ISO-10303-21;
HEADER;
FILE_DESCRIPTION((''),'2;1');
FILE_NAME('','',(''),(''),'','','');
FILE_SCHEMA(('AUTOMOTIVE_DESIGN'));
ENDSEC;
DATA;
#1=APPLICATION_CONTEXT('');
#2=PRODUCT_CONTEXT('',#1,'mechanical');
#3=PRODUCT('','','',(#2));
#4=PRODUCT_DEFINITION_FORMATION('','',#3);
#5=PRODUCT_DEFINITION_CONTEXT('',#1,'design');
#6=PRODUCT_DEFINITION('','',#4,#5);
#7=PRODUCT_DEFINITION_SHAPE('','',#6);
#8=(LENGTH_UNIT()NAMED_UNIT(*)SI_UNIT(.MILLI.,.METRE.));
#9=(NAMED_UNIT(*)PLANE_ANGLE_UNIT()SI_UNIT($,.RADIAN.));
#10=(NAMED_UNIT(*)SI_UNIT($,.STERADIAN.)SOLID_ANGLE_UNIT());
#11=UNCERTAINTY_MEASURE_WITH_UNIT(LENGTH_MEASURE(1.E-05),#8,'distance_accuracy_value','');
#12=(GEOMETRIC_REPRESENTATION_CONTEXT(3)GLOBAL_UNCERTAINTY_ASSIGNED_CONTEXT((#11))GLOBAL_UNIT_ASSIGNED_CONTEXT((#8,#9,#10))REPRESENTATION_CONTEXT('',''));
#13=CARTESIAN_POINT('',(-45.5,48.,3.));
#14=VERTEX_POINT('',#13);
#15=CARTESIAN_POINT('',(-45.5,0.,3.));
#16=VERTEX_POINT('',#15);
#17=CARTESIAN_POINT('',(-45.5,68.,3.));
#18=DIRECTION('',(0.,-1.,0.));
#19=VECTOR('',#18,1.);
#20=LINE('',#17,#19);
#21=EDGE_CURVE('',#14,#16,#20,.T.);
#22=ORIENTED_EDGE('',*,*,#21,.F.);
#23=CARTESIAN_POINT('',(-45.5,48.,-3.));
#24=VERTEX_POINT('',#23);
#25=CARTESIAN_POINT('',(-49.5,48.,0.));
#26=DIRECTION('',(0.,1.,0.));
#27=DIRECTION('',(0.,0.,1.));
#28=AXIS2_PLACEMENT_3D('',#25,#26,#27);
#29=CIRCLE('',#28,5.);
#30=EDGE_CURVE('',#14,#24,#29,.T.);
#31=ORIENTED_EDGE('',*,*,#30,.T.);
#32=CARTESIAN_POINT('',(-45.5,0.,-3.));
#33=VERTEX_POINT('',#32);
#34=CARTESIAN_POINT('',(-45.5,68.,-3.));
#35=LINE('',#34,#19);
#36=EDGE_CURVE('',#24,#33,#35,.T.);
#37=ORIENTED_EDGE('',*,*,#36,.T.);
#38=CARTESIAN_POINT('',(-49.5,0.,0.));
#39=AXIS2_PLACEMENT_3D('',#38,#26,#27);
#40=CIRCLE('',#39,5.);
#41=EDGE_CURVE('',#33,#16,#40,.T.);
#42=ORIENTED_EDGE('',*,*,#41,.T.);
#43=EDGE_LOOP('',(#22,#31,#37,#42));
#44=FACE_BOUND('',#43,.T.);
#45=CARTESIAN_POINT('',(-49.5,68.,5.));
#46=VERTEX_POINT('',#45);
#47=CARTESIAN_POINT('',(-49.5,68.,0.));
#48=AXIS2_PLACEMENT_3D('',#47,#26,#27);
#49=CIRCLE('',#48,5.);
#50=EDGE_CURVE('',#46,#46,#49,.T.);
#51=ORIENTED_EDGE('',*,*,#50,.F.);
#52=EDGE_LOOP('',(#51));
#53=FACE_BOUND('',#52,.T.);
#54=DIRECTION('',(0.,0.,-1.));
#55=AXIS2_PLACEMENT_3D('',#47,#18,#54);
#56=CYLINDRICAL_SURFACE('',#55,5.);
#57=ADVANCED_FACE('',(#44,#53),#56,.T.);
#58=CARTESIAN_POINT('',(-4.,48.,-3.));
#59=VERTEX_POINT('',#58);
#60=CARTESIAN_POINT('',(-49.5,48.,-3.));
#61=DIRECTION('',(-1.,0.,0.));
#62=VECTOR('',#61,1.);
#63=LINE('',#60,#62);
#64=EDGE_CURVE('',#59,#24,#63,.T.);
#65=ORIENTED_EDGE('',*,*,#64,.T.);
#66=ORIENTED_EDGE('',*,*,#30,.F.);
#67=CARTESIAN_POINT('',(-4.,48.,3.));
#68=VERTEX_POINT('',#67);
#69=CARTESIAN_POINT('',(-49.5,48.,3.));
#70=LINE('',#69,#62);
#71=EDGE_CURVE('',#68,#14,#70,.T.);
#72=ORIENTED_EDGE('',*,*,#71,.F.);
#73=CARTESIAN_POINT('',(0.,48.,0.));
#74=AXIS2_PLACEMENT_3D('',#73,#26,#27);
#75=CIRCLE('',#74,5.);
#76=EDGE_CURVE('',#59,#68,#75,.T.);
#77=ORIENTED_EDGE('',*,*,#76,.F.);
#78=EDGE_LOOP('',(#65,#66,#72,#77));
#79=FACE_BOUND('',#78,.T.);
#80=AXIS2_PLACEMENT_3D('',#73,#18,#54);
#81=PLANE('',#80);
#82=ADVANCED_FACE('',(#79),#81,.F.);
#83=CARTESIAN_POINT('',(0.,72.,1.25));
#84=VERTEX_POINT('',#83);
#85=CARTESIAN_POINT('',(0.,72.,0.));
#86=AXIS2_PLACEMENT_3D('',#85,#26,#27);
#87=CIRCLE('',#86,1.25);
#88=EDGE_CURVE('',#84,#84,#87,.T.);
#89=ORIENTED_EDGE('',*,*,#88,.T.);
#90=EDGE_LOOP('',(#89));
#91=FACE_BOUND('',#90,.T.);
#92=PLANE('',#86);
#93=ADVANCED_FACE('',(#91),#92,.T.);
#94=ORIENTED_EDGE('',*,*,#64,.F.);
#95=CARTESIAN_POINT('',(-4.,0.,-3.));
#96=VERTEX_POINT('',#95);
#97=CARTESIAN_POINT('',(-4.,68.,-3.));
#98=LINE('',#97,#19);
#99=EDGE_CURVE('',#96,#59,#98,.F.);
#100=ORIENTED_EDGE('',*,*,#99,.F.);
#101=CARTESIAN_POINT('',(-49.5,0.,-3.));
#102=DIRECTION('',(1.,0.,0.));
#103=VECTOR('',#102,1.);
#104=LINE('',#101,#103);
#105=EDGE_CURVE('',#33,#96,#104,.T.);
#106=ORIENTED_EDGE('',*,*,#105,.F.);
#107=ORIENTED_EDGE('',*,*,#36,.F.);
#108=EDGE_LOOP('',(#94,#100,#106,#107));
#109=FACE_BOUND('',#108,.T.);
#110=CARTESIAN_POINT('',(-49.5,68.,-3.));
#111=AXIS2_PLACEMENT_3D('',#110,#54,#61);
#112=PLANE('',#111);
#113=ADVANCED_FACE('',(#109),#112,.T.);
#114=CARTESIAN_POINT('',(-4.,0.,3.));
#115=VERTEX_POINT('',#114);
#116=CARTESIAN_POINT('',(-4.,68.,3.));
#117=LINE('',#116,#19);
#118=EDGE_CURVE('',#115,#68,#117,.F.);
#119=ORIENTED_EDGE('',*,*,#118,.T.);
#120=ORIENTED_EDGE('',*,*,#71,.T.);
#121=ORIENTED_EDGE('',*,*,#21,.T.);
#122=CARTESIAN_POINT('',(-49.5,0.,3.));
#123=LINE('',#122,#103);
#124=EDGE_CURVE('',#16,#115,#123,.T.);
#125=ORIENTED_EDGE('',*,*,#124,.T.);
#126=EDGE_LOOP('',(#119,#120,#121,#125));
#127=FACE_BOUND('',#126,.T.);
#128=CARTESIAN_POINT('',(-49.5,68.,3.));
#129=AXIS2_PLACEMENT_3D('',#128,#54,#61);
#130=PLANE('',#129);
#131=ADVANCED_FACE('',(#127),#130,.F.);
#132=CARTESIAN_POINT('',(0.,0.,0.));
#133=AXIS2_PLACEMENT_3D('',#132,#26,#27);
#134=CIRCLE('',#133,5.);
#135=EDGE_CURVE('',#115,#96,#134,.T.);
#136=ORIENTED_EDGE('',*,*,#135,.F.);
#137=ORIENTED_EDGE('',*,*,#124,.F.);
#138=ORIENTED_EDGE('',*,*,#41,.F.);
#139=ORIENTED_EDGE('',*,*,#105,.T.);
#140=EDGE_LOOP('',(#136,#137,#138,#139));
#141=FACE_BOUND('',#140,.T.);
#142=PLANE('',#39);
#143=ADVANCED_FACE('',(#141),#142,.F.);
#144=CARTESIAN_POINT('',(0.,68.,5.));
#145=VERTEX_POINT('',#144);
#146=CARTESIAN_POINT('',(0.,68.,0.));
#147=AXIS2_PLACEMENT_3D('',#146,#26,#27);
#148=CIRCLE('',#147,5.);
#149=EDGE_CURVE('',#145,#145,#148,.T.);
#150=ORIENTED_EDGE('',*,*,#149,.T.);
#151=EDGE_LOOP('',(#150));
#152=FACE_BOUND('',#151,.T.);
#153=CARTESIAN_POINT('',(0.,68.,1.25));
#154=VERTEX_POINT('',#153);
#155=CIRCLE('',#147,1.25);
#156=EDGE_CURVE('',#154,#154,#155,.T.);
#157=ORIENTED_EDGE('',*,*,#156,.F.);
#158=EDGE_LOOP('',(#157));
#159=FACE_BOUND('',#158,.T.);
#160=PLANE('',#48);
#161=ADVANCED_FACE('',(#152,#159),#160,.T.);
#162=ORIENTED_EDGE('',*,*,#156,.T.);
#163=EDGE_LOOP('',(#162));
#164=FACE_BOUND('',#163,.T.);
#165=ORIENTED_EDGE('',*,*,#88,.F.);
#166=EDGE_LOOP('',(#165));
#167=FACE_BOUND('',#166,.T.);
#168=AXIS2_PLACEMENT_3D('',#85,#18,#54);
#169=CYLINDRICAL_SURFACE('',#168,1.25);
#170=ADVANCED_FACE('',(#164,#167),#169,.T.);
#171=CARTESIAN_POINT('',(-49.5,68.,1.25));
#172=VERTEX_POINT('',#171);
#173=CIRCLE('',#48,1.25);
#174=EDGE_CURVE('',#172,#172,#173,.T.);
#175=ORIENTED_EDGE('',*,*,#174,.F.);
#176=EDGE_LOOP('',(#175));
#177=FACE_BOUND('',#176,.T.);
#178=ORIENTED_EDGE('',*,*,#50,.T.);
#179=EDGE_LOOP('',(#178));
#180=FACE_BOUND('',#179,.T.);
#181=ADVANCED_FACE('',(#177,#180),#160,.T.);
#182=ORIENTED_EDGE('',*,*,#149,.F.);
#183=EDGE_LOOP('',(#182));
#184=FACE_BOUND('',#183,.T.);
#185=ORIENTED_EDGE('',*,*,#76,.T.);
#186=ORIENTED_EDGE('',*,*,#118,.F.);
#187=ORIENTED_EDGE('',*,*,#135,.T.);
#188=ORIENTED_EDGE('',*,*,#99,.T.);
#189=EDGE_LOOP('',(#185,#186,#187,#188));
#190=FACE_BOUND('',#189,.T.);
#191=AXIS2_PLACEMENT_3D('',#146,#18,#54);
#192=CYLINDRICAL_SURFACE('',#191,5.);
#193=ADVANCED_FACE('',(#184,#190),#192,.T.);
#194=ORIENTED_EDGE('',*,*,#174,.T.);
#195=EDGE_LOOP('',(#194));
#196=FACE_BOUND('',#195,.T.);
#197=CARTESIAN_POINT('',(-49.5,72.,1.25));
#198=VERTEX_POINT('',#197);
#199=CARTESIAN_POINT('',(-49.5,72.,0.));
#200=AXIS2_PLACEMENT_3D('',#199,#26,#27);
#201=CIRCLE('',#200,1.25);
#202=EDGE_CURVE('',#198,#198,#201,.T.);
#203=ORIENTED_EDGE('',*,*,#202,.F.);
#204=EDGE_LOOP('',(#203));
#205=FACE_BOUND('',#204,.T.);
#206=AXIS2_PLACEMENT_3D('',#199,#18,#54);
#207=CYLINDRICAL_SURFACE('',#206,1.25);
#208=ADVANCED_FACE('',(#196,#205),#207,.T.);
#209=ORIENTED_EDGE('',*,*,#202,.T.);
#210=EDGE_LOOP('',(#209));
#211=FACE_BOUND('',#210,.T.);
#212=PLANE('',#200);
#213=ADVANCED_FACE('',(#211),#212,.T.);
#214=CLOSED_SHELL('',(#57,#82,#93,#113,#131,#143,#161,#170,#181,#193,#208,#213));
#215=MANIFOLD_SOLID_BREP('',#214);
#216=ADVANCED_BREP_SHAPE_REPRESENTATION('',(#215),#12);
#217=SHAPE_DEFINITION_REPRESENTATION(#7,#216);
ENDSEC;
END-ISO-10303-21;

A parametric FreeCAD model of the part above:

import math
import FreeCAD as App
import Part
import Sketcher
from FreeCAD import Vector
Q = App.Units.Quantity

doc = App.newDocument("Part")
body = doc.addObject("PartDesign::Body", "Body")

# Sketch on XZ plane
sketch1 = body.newObject("Sketcher::SketchObject", "Sketch")
sketch1.AttachmentSupport = (doc.getObject("XZ_Plane"), [""])
sketch1.MapMode = "FlatFace"
sketch1.addGeometry(Part.ArcOfCircle(Part.Circle(Vector(0, 0, 0), Vector(0, 0, 1), 5), math.radians(-143.130102), math.radians(143.130102)), False)
sketch1.addGeometry(Part.LineSegment(Vector(-4, -3, 0), Vector(-45.5, -3, 0)), False)
sketch1.addGeometry(Part.ArcOfCircle(Part.Circle(Vector(-49.5, 0, 0), Vector(0, 0, 1), 5), math.radians(36.869898), math.radians(323.130102)), False)
sketch1.addGeometry(Part.LineSegment(Vector(-45.5, 3, 0), Vector(-4, 3, 0)), False)
sketch1.addConstraint(Sketcher.Constraint("Coincident", 0, 1, 1, 1))
sketch1.addConstraint(Sketcher.Constraint("Coincident", 1, 2, 2, 2))
sketch1.addConstraint(Sketcher.Constraint("Coincident", 2, 1, 3, 1))
sketch1.addConstraint(Sketcher.Constraint("Coincident", 3, 2, 0, 2))
sketch1.addConstraint(Sketcher.Constraint("Horizontal", 1))
sketch1.addConstraint(Sketcher.Constraint("Horizontal", 3))
sketch1.addConstraint(Sketcher.Constraint("Coincident", 0, 3, -1, 1))
sketch1.addConstraint(Sketcher.Constraint("Equal", 0, 2))
sketch1.addConstraint(Sketcher.Constraint("Symmetric", 1, 2, 2, 1, -1))
sketch1.addConstraint(Sketcher.Constraint("Radius", 0, Q("5 mm")))
sketch1.addConstraint(Sketcher.Constraint("DistanceX", 1, 2, 1, 1, Q("41.5 mm")))
sketch1.addConstraint(Sketcher.Constraint("DistanceX", 0, 1, -1, 1, Q("4 mm")))
pad1 = body.newObject("PartDesign::Pad", "Pad")
pad1.Profile = sketch1
pad1.Length = 68
pad1.Reversed = True

# Sketch on XZ plane
sketch2 = body.newObject("Sketcher::SketchObject", "Sketch001")
sketch2.AttachmentSupport = (doc.getObject("XZ_Plane"), [""])
sketch2.MapMode = "FlatFace"
sketch2.AttachmentOffset = App.Placement(Vector(0, 0, -68), App.Rotation())
sketch2.addGeometry(Part.Circle(Vector(0, 0, 0), Vector(0, 0, 1), 1.25), False)
sketch2.addGeometry(Part.Circle(Vector(-49.5, 0, 0), Vector(0, 0, 1), 1.25), False)
sketch2.addConstraint(Sketcher.Constraint("Coincident", 0, 3, -1, 1))
sketch2.addConstraint(Sketcher.Constraint("Equal", 0, 1))
sketch2.addConstraint(Sketcher.Constraint("PointOnObject", 1, 3, -1))
sketch2.addConstraint(Sketcher.Constraint("Diameter", 0, Q("2.5 mm")))
sketch2.addConstraint(Sketcher.Constraint("DistanceX", 1, 3, -1, 1, Q("49.5 mm")))
pad2 = body.newObject("PartDesign::Pad", "Pad001")
pad2.Profile = sketch2
pad2.Length = 4
pad2.Reversed = True

# Sketch on XZ plane
sketch3 = body.newObject("Sketcher::SketchObject", "Sketch002")
sketch3.AttachmentSupport = (doc.getObject("XZ_Plane"), [""])
sketch3.MapMode = "FlatFace"
sketch3.AttachmentOffset = App.Placement(Vector(0, 0, -48), App.Rotation())
sketch3.addGeometry(Part.LineSegment(Vector(-63.577049, -17.287183, 0), Vector(-63.577049, 23.287183, 0)), False)
sketch3.addGeometry(Part.LineSegment(Vector(-63.577049, 23.287183, 0), Vector(14.077049, 23.287183, 0)), False)
sketch3.addGeometry(Part.LineSegment(Vector(14.077049, 23.287183, 0), Vector(14.077049, -17.287183, 0)), False)
sketch3.addGeometry(Part.LineSegment(Vector(14.077049, -17.287183, 0), Vector(-63.577049, -17.287183, 0)), False)
sketch3.addGeometry(Part.Circle(Vector(-49.5, 0, 0), Vector(0, 0, 1), 5), False)
sketch3.addGeometry(Part.Circle(Vector(0, 0, 0), Vector(0, 0, 1), 5), False)
sketch3.addConstraint(Sketcher.Constraint("Coincident", 0, 2, 1, 1))
sketch3.addConstraint(Sketcher.Constraint("Coincident", 1, 2, 2, 1))
sketch3.addConstraint(Sketcher.Constraint("Coincident", 2, 2, 3, 1))
sketch3.addConstraint(Sketcher.Constraint("Coincident", 3, 2, 0, 1))
sketch3.addConstraint(Sketcher.Constraint("Vertical", 0))
sketch3.addConstraint(Sketcher.Constraint("Horizontal", 1))
sketch3.addConstraint(Sketcher.Constraint("Vertical", 2))
sketch3.addConstraint(Sketcher.Constraint("Horizontal", 3))
sketch3.addConstraint(Sketcher.Constraint("Coincident", 5, 3, -1, 1))
sketch3.addConstraint(Sketcher.Constraint("Equal", 4, 5))
sketch3.addConstraint(Sketcher.Constraint("PointOnObject", 4, 3, -1))
sketch3.addConstraint(Sketcher.Constraint("Diameter", 4, Q("10 mm")))
sketch3.addConstraint(Sketcher.Constraint("DistanceX", 4, 3, -1, 1, Q("49.5 mm")))
sketch3.addConstraint(Sketcher.Constraint("DistanceX", 1, 1, 1, 2, Q("77.654098 mm")))
sketch3.addConstraint(Sketcher.Constraint("DistanceY", 0, 1, 0, 2, Q("40.574365 mm")))
sketch3.addConstraint(Sketcher.Constraint("DistanceX", 0, 2, -1, 1, Q("63.577049 mm")))
sketch3.addConstraint(Sketcher.Constraint("DistanceY", -1, 1, 0, 2, Q("23.287183 mm")))
pocket1 = body.newObject("PartDesign::Pocket", "Pocket")
pocket1.Profile = sketch3
pocket1.Length = 20

doc.recompute()
